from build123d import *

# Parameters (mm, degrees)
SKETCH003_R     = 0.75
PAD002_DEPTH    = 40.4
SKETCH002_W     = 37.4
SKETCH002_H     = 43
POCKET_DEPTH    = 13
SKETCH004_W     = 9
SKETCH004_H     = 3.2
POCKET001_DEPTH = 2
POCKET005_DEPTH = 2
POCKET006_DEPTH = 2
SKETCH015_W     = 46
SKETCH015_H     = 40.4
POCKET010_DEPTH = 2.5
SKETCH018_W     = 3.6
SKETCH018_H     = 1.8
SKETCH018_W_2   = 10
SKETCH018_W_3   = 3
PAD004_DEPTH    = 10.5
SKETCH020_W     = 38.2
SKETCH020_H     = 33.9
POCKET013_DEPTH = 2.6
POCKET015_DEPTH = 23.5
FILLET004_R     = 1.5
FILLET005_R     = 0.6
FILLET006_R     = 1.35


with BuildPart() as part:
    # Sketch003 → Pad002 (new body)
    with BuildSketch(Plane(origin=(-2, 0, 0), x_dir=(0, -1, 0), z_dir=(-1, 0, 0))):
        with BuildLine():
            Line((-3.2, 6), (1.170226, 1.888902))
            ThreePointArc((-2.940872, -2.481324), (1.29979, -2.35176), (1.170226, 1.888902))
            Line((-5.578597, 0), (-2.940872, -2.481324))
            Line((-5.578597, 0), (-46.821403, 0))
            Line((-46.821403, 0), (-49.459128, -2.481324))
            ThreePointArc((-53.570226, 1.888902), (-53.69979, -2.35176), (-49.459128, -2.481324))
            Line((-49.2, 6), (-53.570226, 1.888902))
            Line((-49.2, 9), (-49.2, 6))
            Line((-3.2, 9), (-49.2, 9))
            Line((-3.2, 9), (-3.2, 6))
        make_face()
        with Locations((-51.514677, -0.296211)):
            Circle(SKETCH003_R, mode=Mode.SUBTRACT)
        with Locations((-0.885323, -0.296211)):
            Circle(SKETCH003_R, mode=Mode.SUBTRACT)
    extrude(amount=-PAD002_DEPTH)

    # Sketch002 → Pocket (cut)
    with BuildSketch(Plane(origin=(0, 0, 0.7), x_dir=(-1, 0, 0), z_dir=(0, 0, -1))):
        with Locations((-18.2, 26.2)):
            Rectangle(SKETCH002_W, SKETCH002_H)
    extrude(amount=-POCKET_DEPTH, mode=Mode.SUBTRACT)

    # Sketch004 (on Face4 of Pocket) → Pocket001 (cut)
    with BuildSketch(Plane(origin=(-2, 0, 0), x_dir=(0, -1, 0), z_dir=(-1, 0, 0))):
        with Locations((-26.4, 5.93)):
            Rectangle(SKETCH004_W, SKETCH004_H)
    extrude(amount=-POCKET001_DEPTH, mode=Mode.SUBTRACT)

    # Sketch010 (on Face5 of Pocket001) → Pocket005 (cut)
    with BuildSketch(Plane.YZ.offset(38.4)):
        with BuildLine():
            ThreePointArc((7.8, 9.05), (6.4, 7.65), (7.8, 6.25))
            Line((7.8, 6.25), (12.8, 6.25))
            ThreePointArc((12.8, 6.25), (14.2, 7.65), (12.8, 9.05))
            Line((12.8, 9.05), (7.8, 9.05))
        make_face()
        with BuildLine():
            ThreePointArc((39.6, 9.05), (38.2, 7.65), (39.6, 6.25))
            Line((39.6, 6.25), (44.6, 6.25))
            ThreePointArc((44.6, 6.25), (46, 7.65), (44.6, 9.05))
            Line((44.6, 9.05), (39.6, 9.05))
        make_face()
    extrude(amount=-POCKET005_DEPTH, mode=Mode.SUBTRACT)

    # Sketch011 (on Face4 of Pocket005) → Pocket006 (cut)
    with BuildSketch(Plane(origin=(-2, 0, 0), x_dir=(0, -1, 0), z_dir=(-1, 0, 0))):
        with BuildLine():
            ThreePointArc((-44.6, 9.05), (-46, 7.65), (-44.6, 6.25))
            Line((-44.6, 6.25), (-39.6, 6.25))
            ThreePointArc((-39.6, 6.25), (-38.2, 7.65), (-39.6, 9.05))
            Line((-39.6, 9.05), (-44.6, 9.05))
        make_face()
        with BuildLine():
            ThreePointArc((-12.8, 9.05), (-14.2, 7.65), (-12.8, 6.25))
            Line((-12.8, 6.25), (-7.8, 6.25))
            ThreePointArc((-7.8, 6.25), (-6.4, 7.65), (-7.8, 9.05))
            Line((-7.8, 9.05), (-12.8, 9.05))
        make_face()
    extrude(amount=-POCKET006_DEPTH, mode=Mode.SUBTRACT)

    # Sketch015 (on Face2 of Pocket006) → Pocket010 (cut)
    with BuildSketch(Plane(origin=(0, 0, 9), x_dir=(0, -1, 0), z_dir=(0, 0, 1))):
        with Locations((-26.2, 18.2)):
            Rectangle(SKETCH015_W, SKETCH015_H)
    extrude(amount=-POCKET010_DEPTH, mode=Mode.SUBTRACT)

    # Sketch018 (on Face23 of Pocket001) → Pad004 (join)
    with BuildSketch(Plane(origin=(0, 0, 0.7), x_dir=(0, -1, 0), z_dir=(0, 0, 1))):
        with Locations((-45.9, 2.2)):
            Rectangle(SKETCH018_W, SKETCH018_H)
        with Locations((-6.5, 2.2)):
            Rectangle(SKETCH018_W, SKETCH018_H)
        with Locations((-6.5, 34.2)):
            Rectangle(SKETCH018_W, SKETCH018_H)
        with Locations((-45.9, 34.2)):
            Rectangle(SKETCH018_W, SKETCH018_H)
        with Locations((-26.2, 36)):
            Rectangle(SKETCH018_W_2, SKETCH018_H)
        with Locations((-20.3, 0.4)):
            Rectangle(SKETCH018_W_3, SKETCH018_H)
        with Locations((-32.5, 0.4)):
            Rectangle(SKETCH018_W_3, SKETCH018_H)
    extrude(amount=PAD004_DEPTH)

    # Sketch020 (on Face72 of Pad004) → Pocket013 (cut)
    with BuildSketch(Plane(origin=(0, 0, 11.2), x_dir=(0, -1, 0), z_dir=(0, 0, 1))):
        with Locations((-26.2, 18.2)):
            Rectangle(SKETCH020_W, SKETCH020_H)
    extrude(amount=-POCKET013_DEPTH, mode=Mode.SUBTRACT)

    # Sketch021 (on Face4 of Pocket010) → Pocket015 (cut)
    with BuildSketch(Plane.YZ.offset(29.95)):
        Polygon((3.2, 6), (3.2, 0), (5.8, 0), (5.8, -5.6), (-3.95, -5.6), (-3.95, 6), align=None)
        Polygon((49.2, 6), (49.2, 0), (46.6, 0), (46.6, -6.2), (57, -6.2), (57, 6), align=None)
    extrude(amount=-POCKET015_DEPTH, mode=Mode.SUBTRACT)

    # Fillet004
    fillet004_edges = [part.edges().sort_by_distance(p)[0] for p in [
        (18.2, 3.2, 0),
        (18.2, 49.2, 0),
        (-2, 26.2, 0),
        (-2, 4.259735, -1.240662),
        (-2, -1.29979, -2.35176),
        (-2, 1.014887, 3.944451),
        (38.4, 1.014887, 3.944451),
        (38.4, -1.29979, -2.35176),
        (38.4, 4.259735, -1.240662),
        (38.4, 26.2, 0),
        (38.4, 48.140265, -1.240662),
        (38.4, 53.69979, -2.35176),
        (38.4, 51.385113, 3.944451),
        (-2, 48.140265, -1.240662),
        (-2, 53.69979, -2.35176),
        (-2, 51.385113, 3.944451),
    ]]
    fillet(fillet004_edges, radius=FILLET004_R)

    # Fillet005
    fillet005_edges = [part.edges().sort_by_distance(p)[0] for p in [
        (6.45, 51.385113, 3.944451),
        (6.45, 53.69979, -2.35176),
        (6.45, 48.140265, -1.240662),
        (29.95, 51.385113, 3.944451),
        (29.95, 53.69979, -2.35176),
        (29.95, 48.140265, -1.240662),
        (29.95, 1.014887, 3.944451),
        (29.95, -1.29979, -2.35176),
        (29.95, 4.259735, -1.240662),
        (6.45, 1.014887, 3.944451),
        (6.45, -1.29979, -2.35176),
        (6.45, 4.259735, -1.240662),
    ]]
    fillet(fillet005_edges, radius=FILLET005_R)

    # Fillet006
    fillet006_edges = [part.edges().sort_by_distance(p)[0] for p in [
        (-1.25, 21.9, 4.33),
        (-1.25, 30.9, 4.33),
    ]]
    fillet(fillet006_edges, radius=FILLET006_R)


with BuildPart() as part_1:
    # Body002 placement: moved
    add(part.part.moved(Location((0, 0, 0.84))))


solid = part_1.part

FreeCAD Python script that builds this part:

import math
import FreeCAD as App
import Part
import Sketcher

V = App.Vector
Q = App.Units.Quantity


def edges_at(feature, points):
    """Names of the edges that pass closest to the given points."""
    edges = feature.Shape.Edges
    near = lambda p: min(range(len(edges)), key=lambda i: edges[i].distToShape(Part.Vertex(*p))[0])
    return sorted({f"Edge{near(p) + 1}" for p in points})

doc = App.newDocument("Part")
params = doc.addObject("Spreadsheet::Sheet", "Params")
for row, (alias, value) in enumerate([
    ("sketch1_radius", "3 mm"),
    ("sketch1_diameter", "1.5 mm"),
    ("sketch1_width", "46 mm"),
    ("sketch1_height", "3 mm"),
    ("sketch1_length", "6 mm"),
    ("pad1_length", "40.4 mm"),
    ("sketch2_height", "43 mm"),
    ("sketch2_width", "37.4 mm"),
    ("pocket1_length", "13 mm"),
    ("sketch3_width", "9 mm"),
    ("sketch3_height", "3.2 mm"),
    ("pocket2_length", "2 mm"),
    ("sketch4_radius", "1.4 mm"),
    ("sketch4_width", "5 mm"),
    ("pocket3_length", "2 mm"),
    ("sketch5_radius", "1.4 mm"),
    ("sketch5_width", "5 mm"),
    ("pocket4_length", "2 mm"),
    ("sketch6_height", "46 mm"),
    ("sketch6_width", "40.4 mm"),
    ("pocket5_length", "2.5 mm"),
    ("sketch7_height", "10 mm"),
    ("sketch7_height2", "3 mm"),
    ("sketch7_width", "1.8 mm"),
    ("sketch7_height3", "3.6 mm"),
    ("pad2_length", "10.5 mm"),
    ("sketch8_width", "33.9 mm"),
    ("sketch8_height", "38.2 mm"),
    ("pocket6_length", "2.6 mm"),
    ("sketch9_height", "6 mm"),
    ("sketch9_width", "2.6 mm"),
    ("sketch9_width2", "10.4 mm"),
    ("sketch9_height2", "11.6 mm"),
    ("sketch9_height3", "6.2 mm"),
    ("pocket7_length", "23.5 mm"),
    ("fillet_radius", "1.5 mm"),
    ("fillet2_radius", "0.6 mm"),
    ("fillet3_radius", "1.35 mm"),
], start=1):
    params.set(f"A{row}", alias)
    params.set(f"B{row}", "=" + value)
    params.setAlias(f"B{row}", alias)

body = doc.addObject("PartDesign::Body", "Body")

sketch1 = doc.addObject("Sketcher::SketchObject", "Sketch")
body.addObject(sketch1)
sketch1.AttachmentSupport = (doc.YZ_Plane, [""])
sketch1.MapMode = "FlatFace"
sketch1.AttachmentOffset = App.Placement(V(0, 0, -2), App.Rotation())
sketch1.addGeometry(Part.LineSegment(V(-1.170226, 1.888902, 0), V(3.2, 6, 0)), False)
sketch1.addGeometry(Part.LineSegment(V(3.2, 6, 0), V(3.2, 9, 0)), False)
sketch1.addGeometry(Part.LineSegment(V(3.2, 9, 0), V(49.2, 9, 0)), False)
sketch1.addGeometry(Part.LineSegment(V(49.2, 9, 0), V(49.2, 6, 0)), False)
sketch1.addGeometry(Part.LineSegment(V(49.2, 6, 0), V(53.570226, 1.888902, 0)), False)
sketch1.addGeometry(Part.ArcOfCircle(Part.Circle(V(51.514677, -0.296211, 0), V(0, 0, 1), 3), math.radians(-133.249999), math.radians(46.750001)), False)
sketch1.addGeometry(Part.LineSegment(V(49.459128, -2.481324, 0), V(46.821403, 0, 0)), False)
sketch1.addGeometry(Part.LineSegment(V(46.821403, 0, 0), V(5.578597, 0, 0)), False)
sketch1.addGeometry(Part.LineSegment(V(5.578597, 0, 0), V(2.940872, -2.481324, 0)), False)
sketch1.addGeometry(Part.ArcOfCircle(Part.Circle(V(0.885323, -0.296211, 0), V(0, 0, 1), 3), math.radians(133.249999), math.radians(313.249999)), False)
sketch1.addGeometry(Part.Circle(V(0.885323, -0.296211, 0), V(0, 0, 1), 0.75), False)
sketch1.addGeometry(Part.Circle(V(51.514677, -0.296211, 0), V(0, 0, 1), 0.75), False)
sketch1.addConstraint(Sketcher.Constraint("Coincident", 0, 2, 1, 1))
sketch1.addConstraint(Sketcher.Constraint("Coincident", 1, 2, 2, 1))
sketch1.addConstraint(Sketcher.Constraint("Coincident", 2, 2, 3, 1))
sketch1.addConstraint(Sketcher.Constraint("Coincident", 3, 2, 4, 1))
sketch1.addConstraint(Sketcher.Constraint("Tangent", 4, 2, 5, 2))
sketch1.addConstraint(Sketcher.Constraint("Tangent", 5, 1, 6, 1))
sketch1.addConstraint(Sketcher.Constraint("Coincident", 6, 2, 7, 1))
sketch1.addConstraint(Sketcher.Constraint("Coincident", 7, 2, 8, 1))
sketch1.addConstraint(Sketcher.Constraint("Tangent", 8, 2, 9, 2))
sketch1.addConstraint(Sketcher.Constraint("Tangent", 9, 1, 0, 1))
sketch1.addConstraint(Sketcher.Constraint("Vertical", 1))
sketch1.addConstraint(Sketcher.Constraint("Horizontal", 2))
sketch1.addConstraint(Sketcher.Constraint("Vertical", 3))
sketch1.addConstraint(Sketcher.Constraint("Horizontal", 7))
sketch1.addConstraint(Sketcher.Constraint("Coincident", 10, 3, 9, 3))
sketch1.addConstraint(Sketcher.Constraint("Coincident", 11, 3, 5, 3))
sketch1.addConstraint(Sketcher.Constraint("Equal", 5, 9))
sketch1.addConstraint(Sketcher.Constraint("Equal", 10, 11))
sketch1.addConstraint(Sketcher.Constraint("PointOnObject", 6, 2, -1))
sketch1.addConstraint(Sketcher.Constraint("Parallel", 4, 6))
sketch1.addConstraint(Sketcher.Constraint("Parallel", 0, 8))
sketch1.addConstraint(Sketcher.Constraint("Horizontal", 5, 3, 9, 3))
sketch1.addConstraint(Sketcher.Constraint("Horizontal", 0, 2, 3, 2))
sketch1.addConstraint(Sketcher.Constraint("Horizontal", 5, 1, 8, 2))
sketch1.addConstraint(Sketcher.Constraint("Radius", 5, Q("3 mm")))
sketch1.addConstraint(Sketcher.Constraint("Diameter", 10, Q("1.5 mm")))
sketch1.addConstraint(Sketcher.Constraint("DistanceX", 2, 1, 2, 2, Q("46 mm")))
sketch1.addConstraint(Sketcher.Constraint("DistanceY", 1, 1, 1, 2, Q("3 mm")))
sketch1.addConstraint(Sketcher.Constraint("Distance", 0, Q("6 mm")))
sketch1.addConstraint(Sketcher.Constraint("DistanceY", -1, 1, 0, 2, Q("6 mm")))
sketch1.addConstraint(Sketcher.Constraint("DistanceX", -1, 1, 0, 2, Q("3.2 mm")))
sketch1.addConstraint(Sketcher.Constraint("Angle", 0, Q("43.249999 deg")))
sketch1.setExpression("Constraints[24]", "Params.sketch1_radius")
sketch1.setExpression("Constraints[25]", "Params.sketch1_diameter")
sketch1.setExpression("Constraints[26]", "Params.sketch1_width")
sketch1.setExpression("Constraints[27]", "Params.sketch1_height")
sketch1.setExpression("Constraints[28]", "Params.sketch1_length")
pad1 = doc.addObject("PartDesign::Pad", "Pad")
body.addObject(pad1)
pad1.Profile = sketch1
pad1.setExpression("Length", "Params.pad1_length")

sketch2 = doc.addObject("Sketcher::SketchObject", "Sketch001")
body.addObject(sketch2)
sketch2.AttachmentSupport = (doc.XY_Plane, [""])
sketch2.MapMode = "FlatFace"
sketch2.AttachmentOffset = App.Placement(V(0, 0, 0.7), App.Rotation())
sketch2.addGeometry(Part.LineSegment(V(36.9, 47.7, 0), V(36.9, 4.7, 0)), False)
sketch2.addGeometry(Part.LineSegment(V(36.9, 4.7, 0), V(-0.5, 4.7, 0)), False)
sketch2.addGeometry(Part.LineSegment(V(-0.5, 4.7, 0), V(-0.5, 47.7, 0)), False)
sketch2.addGeometry(Part.LineSegment(V(-0.5, 47.7, 0), V(36.9, 47.7, 0)), False)
sketch2.addConstraint(Sketcher.Constraint("Coincident", 0, 2, 1, 1))
sketch2.addConstraint(Sketcher.Constraint("Coincident", 1, 2, 2, 1))
sketch2.addConstraint(Sketcher.Constraint("Coincident", 2, 2, 3, 1))
sketch2.addConstraint(Sketcher.Constraint("Coincident", 3, 2, 0, 1))
sketch2.addConstraint(Sketcher.Constraint("Vertical", 0))
sketch2.addConstraint(Sketcher.Constraint("Horizontal", 1))
sketch2.addConstraint(Sketcher.Constraint("Vertical", 2))
sketch2.addConstraint(Sketcher.Constraint("Horizontal", 3))
sketch2.addConstraint(Sketcher.Constraint("DistanceY", 0, 2, 0, 1, Q("43 mm")))
sketch2.addConstraint(Sketcher.Constraint("DistanceX", 1, 2, 1, 1, Q("37.4 mm")))
sketch2.addConstraint(Sketcher.Constraint("DistanceX", -1, 1, 0, 2, Q("36.9 mm")))
sketch2.addConstraint(Sketcher.Constraint("DistanceY", -1, 1, 0, 2, Q("4.7 mm")))
sketch2.setExpression("Constraints[8]", "Params.sketch2_height")
sketch2.setExpression("Constraints[9]", "Params.sketch2_width")
pocket1 = doc.addObject("PartDesign::Pocket", "Pocket")
body.addObject(pocket1)
pocket1.Profile = sketch2
pocket1.setExpression("Length", "Params.pocket1_length")
pocket1.Reversed = True

sketch3 = doc.addObject("Sketcher::SketchObject", "Sketch002")
body.addObject(sketch3)
sketch3.AttachmentSupport = (doc.YZ_Plane, [""])
sketch3.MapMode = "FlatFace"
sketch3.AttachmentOffset = App.Placement(V(0, 0, -2), App.Rotation())
sketch3.addGeometry(Part.LineSegment(V(30.9, 7.53, 0), V(30.9, 4.33, 0)), False)
sketch3.addGeometry(Part.LineSegment(V(30.9, 4.33, 0), V(21.9, 4.33, 0)), False)
sketch3.addGeometry(Part.LineSegment(V(21.9, 4.33, 0), V(21.9, 7.53, 0)), False)
sketch3.addGeometry(Part.LineSegment(V(21.9, 7.53, 0), V(30.9, 7.53, 0)), False)
sketch3.addConstraint(Sketcher.Constraint("Coincident", 0, 2, 1, 1))
sketch3.addConstraint(Sketcher.Constraint("Coincident", 1, 2, 2, 1))
sketch3.addConstraint(Sketcher.Constraint("Coincident", 2, 2, 3, 1))
sketch3.addConstraint(Sketcher.Constraint("Coincident", 3, 2, 0, 1))
sketch3.addConstraint(Sketcher.Constraint("Vertical", 0))
sketch3.addConstraint(Sketcher.Constraint("Horizontal", 1))
sketch3.addConstraint(Sketcher.Constraint("Vertical", 2))
sketch3.addConstraint(Sketcher.Constraint("Horizontal", 3))
sketch3.addConstraint(Sketcher.Constraint("DistanceX", 1, 2, 1, 1, Q("9 mm")))
sketch3.addConstraint(Sketcher.Constraint("DistanceY", 0, 2, 0, 1, Q("3.2 mm")))
sketch3.addConstraint(Sketcher.Constraint("DistanceX", -1, 1, 0, 2, Q("30.9 mm")))
sketch3.addConstraint(Sketcher.Constraint("DistanceY", -1, 1, 0, 2, Q("4.33 mm")))
sketch3.setExpression("Constraints[8]", "Params.sketch3_width")
sketch3.setExpression("Constraints[9]", "Params.sketch3_height")
pocket2 = doc.addObject("PartDesign::Pocket", "Pocket001")
body.addObject(pocket2)
pocket2.Profile = sketch3
pocket2.setExpression("Length", "Params.pocket2_length")
pocket2.Reversed = True

sketch4 = doc.addObject("Sketcher::SketchObject", "Sketch003")
body.addObject(sketch4)
sketch4.AttachmentSupport = (doc.YZ_Plane, [""])
sketch4.MapMode = "FlatFace"
sketch4.AttachmentOffset = App.Placement(V(0, 0, 38.4), App.Rotation())
sketch4.addGeometry(Part.ArcOfCircle(Part.Circle(V(7.8, 7.65, 0), V(0, 0, 1), 1.4), math.radians(90), math.radians(270)), False)
sketch4.addGeometry(Part.LineSegment(V(7.8, 6.25, 0), V(12.8, 6.25, 0)), False)
sketch4.addGeometry(Part.ArcOfCircle(Part.Circle(V(12.8, 7.65, 0), V(0, 0, 1), 1.4), math.radians(-90), math.radians(90)), False)
sketch4.addGeometry(Part.LineSegment(V(12.8, 9.05, 0), V(7.8, 9.05, 0)), False)
sketch4.addGeometry(Part.ArcOfCircle(Part.Circle(V(39.6, 7.65, 0), V(0, 0, 1), 1.4), math.radians(90), math.radians(270)), False)
sketch4.addGeometry(Part.LineSegment(V(39.6, 6.25, 0), V(44.6, 6.25, 0)), False)
sketch4.addGeometry(Part.ArcOfCircle(Part.Circle(V(44.6, 7.65, 0), V(0, 0, 1), 1.4), math.radians(-90), math.radians(90)), False)
sketch4.addGeometry(Part.LineSegment(V(44.6, 9.05, 0), V(39.6, 9.05, 0)), False)
sketch4.addConstraint(Sketcher.Constraint("Tangent", 0, 2, 1, 1))
sketch4.addConstraint(Sketcher.Constraint("Tangent", 1, 2, 2, 1))
sketch4.addConstraint(Sketcher.Constraint("Tangent", 2, 2, 3, 1))
sketch4.addConstraint(Sketcher.Constraint("Tangent", 3, 2, 0, 1))
sketch4.addConstraint(Sketcher.Constraint("Tangent", 4, 2, 5, 1))
sketch4.addConstraint(Sketcher.Constraint("Tangent", 5, 2, 6, 1))
sketch4.addConstraint(Sketcher.Constraint("Tangent", 6, 2, 7, 1))
sketch4.addConstraint(Sketcher.Constraint("Tangent", 7, 2, 4, 1))
sketch4.addConstraint(Sketcher.Constraint("Horizontal", 1))
sketch4.addConstraint(Sketcher.Constraint("Horizontal", 3))
sketch4.addConstraint(Sketcher.Constraint("Horizontal", 5))
sketch4.addConstraint(Sketcher.Constraint("Horizontal", 7))
sketch4.addConstraint(Sketcher.Constraint("Equal", 2, 4))
sketch4.addConstraint(Sketcher.Constraint("Horizontal", 2, 3, 4, 3))
sketch4.addConstraint(Sketcher.Constraint("Equal", 3, 5))
sketch4.addConstraint(Sketcher.Constraint("Radius", 0, Q("1.4 mm")))
sketch4.addConstraint(Sketcher.Constraint("DistanceX", 1, 1, 1, 2, Q("5 mm")))
sketch4.addConstraint(Sketcher.Constraint("DistanceX", -1, 1, 0, 3, Q("7.8 mm")))
sketch4.addConstraint(Sketcher.Constraint("DistanceX", -1, 1, 4, 3, Q("39.6 mm")))
sketch4.addConstraint(Sketcher.Constraint("DistanceY", -1, 1, 0, 3, Q("7.65 mm")))
sketch4.setExpression("Constraints[15]", "Params.sketch4_radius")
sketch4.setExpression("Constraints[16]", "Params.sketch4_width")
pocket3 = doc.addObject("PartDesign::Pocket", "Pocket002")
body.addObject(pocket3)
pocket3.Profile = sketch4
pocket3.setExpression("Length", "Params.pocket3_length")

sketch5 = doc.addObject("Sketcher::SketchObject", "Sketch004")
body.addObject(sketch5)
sketch5.AttachmentSupport = (doc.YZ_Plane, [""])
sketch5.MapMode = "FlatFace"
sketch5.AttachmentOffset = App.Placement(V(0, 0, -2), App.Rotation())
sketch5.addGeometry(Part.ArcOfCircle(Part.Circle(V(44.6, 7.65, 0), V(0, 0, 1), 1.4), math.radians(-90), math.radians(90)), False)
sketch5.addGeometry(Part.LineSegment(V(44.6, 6.25, 0), V(39.6, 6.25, 0)), False)
sketch5.addGeometry(Part.ArcOfCircle(Part.Circle(V(39.6, 7.65, 0), V(0, 0, 1), 1.4), math.radians(90), math.radians(270)), False)
sketch5.addGeometry(Part.LineSegment(V(39.6, 9.05, 0), V(44.6, 9.05, 0)), False)
sketch5.addGeometry(Part.ArcOfCircle(Part.Circle(V(12.8, 7.65, 0), V(0, 0, 1), 1.4), math.radians(-90), math.radians(90)), False)
sketch5.addGeometry(Part.LineSegment(V(12.8, 6.25, 0), V(7.8, 6.25, 0)), False)
sketch5.addGeometry(Part.ArcOfCircle(Part.Circle(V(7.8, 7.65, 0), V(0, 0, 1), 1.4), math.radians(90), math.radians(270)), False)
sketch5.addGeometry(Part.LineSegment(V(7.8, 9.05, 0), V(12.8, 9.05, 0)), False)
sketch5.addConstraint(Sketcher.Constraint("Tangent", 0, 1, 1, 1))
sketch5.addConstraint(Sketcher.Constraint("Tangent", 1, 2, 2, 2))
sketch5.addConstraint(Sketcher.Constraint("Tangent", 2, 1, 3, 1))
sketch5.addConstraint(Sketcher.Constraint("Tangent", 3, 2, 0, 2))
sketch5.addConstraint(Sketcher.Constraint("Tangent", 4, 1, 5, 1))
sketch5.addConstraint(Sketcher.Constraint("Tangent", 5, 2, 6, 2))
sketch5.addConstraint(Sketcher.Constraint("Tangent", 6, 1, 7, 1))
sketch5.addConstraint(Sketcher.Constraint("Tangent", 7, 2, 4, 2))
sketch5.addConstraint(Sketcher.Constraint("Horizontal", 1))
sketch5.addConstraint(Sketcher.Constraint("Horizontal", 3))
sketch5.addConstraint(Sketcher.Constraint("Horizontal", 5))
sketch5.addConstraint(Sketcher.Constraint("Horizontal", 7))
sketch5.addConstraint(Sketcher.Constraint("Equal", 2, 4))
sketch5.addConstraint(Sketcher.Constraint("Horizontal", 2, 3, 4, 3))
sketch5.addConstraint(Sketcher.Constraint("Equal", 3, 5))
sketch5.addConstraint(Sketcher.Constraint("Radius", 0, Q("1.4 mm")))
sketch5.addConstraint(Sketcher.Constraint("DistanceX", 1, 2, 1, 1, Q("5 mm")))
sketch5.addConstraint(Sketcher.Constraint("DistanceX", -1, 1, 0, 3, Q("44.6 mm")))
sketch5.addConstraint(Sketcher.Constraint("DistanceX", -1, 1, 4, 3, Q("12.8 mm")))
sketch5.addConstraint(Sketcher.Constraint("DistanceY", -1, 1, 0, 3, Q("7.65 mm")))
sketch5.setExpression("Constraints[15]", "Params.sketch5_radius")
sketch5.setExpression("Constraints[16]", "Params.sketch5_width")
pocket4 = doc.addObject("PartDesign::Pocket", "Pocket003")
body.addObject(pocket4)
pocket4.Profile = sketch5
pocket4.setExpression("Length", "Params.pocket4_length")
pocket4.Reversed = True

sketch6 = doc.addObject("Sketcher::SketchObject", "Sketch005")
body.addObject(sketch6)
sketch6.AttachmentSupport = (doc.XY_Plane, [""])
sketch6.MapMode = "FlatFace"
sketch6.AttachmentOffset = App.Placement(V(0, 0, 9), App.Rotation())
sketch6.addGeometry(Part.LineSegment(V(38.4, 49.2, 0), V(-2, 49.2, 0)), False)
sketch6.addGeometry(Part.LineSegment(V(-2, 49.2, 0), V(-2, 3.2, 0)), False)
sketch6.addGeometry(Part.LineSegment(V(-2, 3.2, 0), V(38.4, 3.2, 0)), False)
sketch6.addGeometry(Part.LineSegment(V(38.4, 3.2, 0), V(38.4, 49.2, 0)), False)
sketch6.addConstraint(Sketcher.Constraint("Coincident", 0, 2, 1, 1))
sketch6.addConstraint(Sketcher.Constraint("Coincident", 1, 2, 2, 1))
sketch6.addConstraint(Sketcher.Constraint("Coincident", 2, 2, 3, 1))
sketch6.addConstraint(Sketcher.Constraint("Coincident", 3, 2, 0, 1))
sketch6.addConstraint(Sketcher.Constraint("Horizontal", 0))
sketch6.addConstraint(Sketcher.Constraint("Vertical", 1))
sketch6.addConstraint(Sketcher.Constraint("Horizontal", 2))
sketch6.addConstraint(Sketcher.Constraint("Vertical", 3))
sketch6.addConstraint(Sketcher.Constraint("DistanceY", 1, 2, 1, 1, Q("46 mm")))
sketch6.addConstraint(Sketcher.Constraint("DistanceX", 0, 2, 0, 1, Q("40.4 mm")))
sketch6.addConstraint(Sketcher.Constraint("DistanceX", 0, 2, -1, 1, Q("2 mm")))
sketch6.addConstraint(Sketcher.Constraint("DistanceY", -1, 1, 0, 2, Q("49.2 mm")))
sketch6.setExpression("Constraints[8]", "Params.sketch6_height")
sketch6.setExpression("Constraints[9]", "Params.sketch6_width")
pocket5 = doc.addObject("PartDesign::Pocket", "Pocket004")
body.addObject(pocket5)
pocket5.Profile = sketch6
pocket5.setExpression("Length", "Params.pocket5_length")

sketch7 = doc.addObject("Sketcher::SketchObject", "Sketch006")
body.addObject(sketch7)
sketch7.AttachmentSupport = (doc.XY_Plane, [""])
sketch7.MapMode = "FlatFace"
sketch7.AttachmentOffset = App.Placement(V(0, 0, 0.7), App.Rotation())
sketch7.addGeometry(Part.LineSegment(V(3.1, 47.7, 0), V(1.3, 47.7, 0)), False)
sketch7.addGeometry(Part.LineSegment(V(1.3, 47.7, 0), V(1.3, 44.1, 0)), False)
sketch7.addGeometry(Part.LineSegment(V(1.3, 44.1, 0), V(3.1, 44.1, 0)), False)
sketch7.addGeometry(Part.LineSegment(V(3.1, 44.1, 0), V(3.1, 47.7, 0)), False)
sketch7.addGeometry(Part.LineSegment(V(3.1, 8.3, 0), V(1.3, 8.3, 0)), False)
sketch7.addGeometry(Part.LineSegment(V(1.3, 8.3, 0), V(1.3, 4.7, 0)), False)
sketch7.addGeometry(Part.LineSegment(V(1.3, 4.7, 0), V(3.1, 4.7, 0)), False)
sketch7.addGeometry(Part.LineSegment(V(3.1, 4.7, 0), V(3.1, 8.3, 0)), False)
sketch7.addGeometry(Part.LineSegment(V(35.1, 8.3, 0), V(33.3, 8.3, 0)), False)
sketch7.addGeometry(Part.LineSegment(V(33.3, 8.3, 0), V(33.3, 4.7, 0)), False)
sketch7.addGeometry(Part.LineSegment(V(33.3, 4.7, 0), V(35.1, 4.7, 0)), False)
sketch7.addGeometry(Part.LineSegment(V(35.1, 4.7, 0), V(35.1, 8.3, 0)), False)
sketch7.addGeometry(Part.LineSegment(V(35.1, 47.7, 0), V(33.3, 47.7, 0)), False)
sketch7.addGeometry(Part.LineSegment(V(33.3, 47.7, 0), V(33.3, 44.1, 0)), False)
sketch7.addGeometry(Part.LineSegment(V(33.3, 44.1, 0), V(35.1, 44.1, 0)), False)
sketch7.addGeometry(Part.LineSegment(V(35.1, 44.1, 0), V(35.1, 47.7, 0)), False)
sketch7.addGeometry(Part.LineSegment(V(36.9, 31.2, 0), V(35.1, 31.2, 0)), False)
sketch7.addGeometry(Part.LineSegment(V(35.1, 31.2, 0), V(35.1, 21.2, 0)), False)
sketch7.addGeometry(Part.LineSegment(V(35.1, 21.2, 0), V(36.9, 21.2, 0)), False)
sketch7.addGeometry(Part.LineSegment(V(36.9, 21.2, 0), V(36.9, 31.2, 0)), False)
sketch7.addGeometry(Part.LineSegment(V(1.3, 21.8, 0), V(-0.5, 21.8, 0)), False)
sketch7.addGeometry(Part.LineSegment(V(-0.5, 21.8, 0), V(-0.5, 18.8, 0)), False)
sketch7.addGeometry(Part.LineSegment(V(-0.5, 18.8, 0), V(1.3, 18.8, 0)), False)
sketch7.addGeometry(Part.LineSegment(V(1.3, 18.8, 0), V(1.3, 21.8, 0)), False)
sketch7.addGeometry(Part.LineSegment(V(1.3, 34, 0), V(-0.5, 34, 0)), False)
sketch7.addGeometry(Part.LineSegment(V(-0.5, 34, 0), V(-0.5, 31, 0)), False)
sketch7.addGeometry(Part.LineSegment(V(-0.5, 31, 0), V(1.3, 31, 0)), False)
sketch7.addGeometry(Part.LineSegment(V(1.3, 31, 0), V(1.3, 34, 0)), False)
sketch7.addConstraint(Sketcher.Constraint("Coincident", 0, 2, 1, 1))
sketch7.addConstraint(Sketcher.Constraint("Coincident", 1, 2, 2, 1))
sketch7.addConstraint(Sketcher.Constraint("Coincident", 2, 2, 3, 1))
sketch7.addConstraint(Sketcher.Constraint("Coincident", 3, 2, 0, 1))
sketch7.addConstraint(Sketcher.Constraint("Coincident", 4, 2, 5, 1))
sketch7.addConstraint(Sketcher.Constraint("Coincident", 5, 2, 6, 1))
sketch7.addConstraint(Sketcher.Constraint("Coincident", 6, 2, 7, 1))
sketch7.addConstraint(Sketcher.Constraint("Coincident", 7, 2, 4, 1))
sketch7.addConstraint(Sketcher.Constraint("Coincident", 8, 2, 9, 1))
sketch7.addConstraint(Sketcher.Constraint("Coincident", 9, 2, 10, 1))
sketch7.addConstraint(Sketcher.Constraint("Coincident", 10, 2, 11, 1))
sketch7.addConstraint(Sketcher.Constraint("Coincident", 11, 2, 8, 1))
sketch7.addConstraint(Sketcher.Constraint("Coincident", 12, 2, 13, 1))
sketch7.addConstraint(Sketcher.Constraint("Coincident", 13, 2, 14, 1))
sketch7.addConstraint(Sketcher.Constraint("Coincident", 14, 2, 15, 1))
sketch7.addConstraint(Sketcher.Constraint("Coincident", 15, 2, 12, 1))
sketch7.addConstraint(Sketcher.Constraint("Coincident", 16, 2, 17, 1))
sketch7.addConstraint(Sketcher.Constraint("Coincident", 17, 2, 18, 1))
sketch7.addConstraint(Sketcher.Constraint("Coincident", 18, 2, 19, 1))
sketch7.addConstraint(Sketcher.Constraint("Coincident", 19, 2, 16, 1))
sketch7.addConstraint(Sketcher.Constraint("Coincident", 20, 2, 21, 1))
sketch7.addConstraint(Sketcher.Constraint("Coincident", 21, 2, 22, 1))
sketch7.addConstraint(Sketcher.Constraint("Coincident", 22, 2, 23, 1))
sketch7.addConstraint(Sketcher.Constraint("Coincident", 23, 2, 20, 1))
sketch7.addConstraint(Sketcher.Constraint("Coincident", 24, 2, 25, 1))
sketch7.addConstraint(Sketcher.Constraint("Coincident", 25, 2, 26, 1))
sketch7.addConstraint(Sketcher.Constraint("Coincident", 26, 2, 27, 1))
sketch7.addConstraint(Sketcher.Constraint("Coincident", 27, 2, 24, 1))
sketch7.addConstraint(Sketcher.Constraint("Horizontal", 0))
sketch7.addConstraint(Sketcher.Constraint("Vertical", 1))
sketch7.addConstraint(Sketcher.Constraint("Horizontal", 2))
sketch7.addConstraint(Sketcher.Constraint("Vertical", 3))
sketch7.addConstraint(Sketcher.Constraint("Horizontal", 4))
sketch7.addConstraint(Sketcher.Constraint("Vertical", 5))
sketch7.addConstraint(Sketcher.Constraint("Horizontal", 6))
sketch7.addConstraint(Sketcher.Constraint("Vertical", 7))
sketch7.addConstraint(Sketcher.Constraint("Horizontal", 8))
sketch7.addConstraint(Sketcher.Constraint("Vertical", 9))
sketch7.addConstraint(Sketcher.Constraint("Horizontal", 10))
sketch7.addConstraint(Sketcher.Constraint("Vertical", 11))
sketch7.addConstraint(Sketcher.Constraint("Horizontal", 12))
sketch7.addConstraint(Sketcher.Constraint("Vertical", 13))
sketch7.addConstraint(Sketcher.Constraint("Horizontal", 14))
sketch7.addConstraint(Sketcher.Constraint("Vertical", 15))
sketch7.addConstraint(Sketcher.Constraint("Horizontal", 16))
sketch7.addConstraint(Sketcher.Constraint("Vertical", 17))
sketch7.addConstraint(Sketcher.Constraint("Horizontal", 18))
sketch7.addConstraint(Sketcher.Constraint("Vertical", 19))
sketch7.addConstraint(Sketcher.Constraint("Horizontal", 20))
sketch7.addConstraint(Sketcher.Constraint("Vertical", 21))
sketch7.addConstraint(Sketcher.Constraint("Horizontal", 22))
sketch7.addConstraint(Sketcher.Constraint("Vertical", 23))
sketch7.addConstraint(Sketcher.Constraint("Horizontal", 24))
sketch7.addConstraint(Sketcher.Constraint("Vertical", 25))
sketch7.addConstraint(Sketcher.Constraint("Horizontal", 26))
sketch7.addConstraint(Sketcher.Constraint("Vertical", 27))
sketch7.addConstraint(Sketcher.Constraint("Horizontal", 7, 2, 8, 2))
sketch7.addConstraint(Sketcher.Constraint("Horizontal", 6, 2, 9, 2))
sketch7.addConstraint(Sketcher.Constraint("Horizontal", 3, 2, 12, 2))
sketch7.addConstraint(Sketcher.Constraint("Horizontal", 2, 2, 13, 2))
sketch7.addConstraint(Sketcher.Constraint("Vertical", 1, 2, 4, 2))
sketch7.addConstraint(Sketcher.Constraint("Vertical", 3, 2, 6, 2))
sketch7.addConstraint(Sketcher.Constraint("Vertical", 9, 2, 12, 2))
sketch7.addConstraint(Sketcher.Constraint("Vertical", 11, 2, 14, 2))
sketch7.addConstraint(Sketcher.Constraint("Vertical", 15, 2, 16, 2))
sketch7.addConstraint(Sketcher.Constraint("Vertical", 5, 2, 22, 2))
sketch7.addConstraint(Sketcher.Constraint("Vertical", 21, 2, 24, 2))
sketch7.addConstraint(Sketcher.Constraint("Vertical", 23, 2, 26, 2))
sketch7.addConstraint(Sketcher.Constraint("Equal", 6, 8))
sketch7.addConstraint(Sketcher.Constraint("Equal", 14, 16))
sketch7.addConstraint(Sketcher.Constraint("Equal", 18, 20))
sketch7.addConstraint(Sketcher.Constraint("Equal", 3, 5))
sketch7.addConstraint(Sketcher.Constraint("Equal", 23, 25))
sketch7.addConstraint(Sketcher.Constraint("DistanceY", 17, 2, 17, 1, Q("10 mm")))
sketch7.addConstraint(Sketcher.Constraint("DistanceY", 21, 2, 21, 1, Q("3 mm")))
sketch7.addConstraint(Sketcher.Constraint("DistanceX", 0, 2, 0, 1, Q("1.8 mm")))
sketch7.addConstraint(Sketcher.Constraint("DistanceY", 1, 2, 1, 1, Q("3.6 mm")))
sketch7.addConstraint(Sketcher.Constraint("DistanceY", -1, 1, 24, 2, Q("34 mm")))
sketch7.addConstraint(Sketcher.Constraint("DistanceY", 5, 2, 0, 2, Q("43 mm")))
sketch7.addConstraint(Sketcher.Constraint("DistanceX", 4, 2, 8, 2, Q("32 mm")))
sketch7.addConstraint(Sketcher.Constraint("DistanceX", -1, 1, 0, 2, Q("1.3 mm")))
sketch7.addConstraint(Sketcher.Constraint("DistanceY", -1, 1, 0, 2, Q("47.7 mm")))
sketch7.addConstraint(Sketcher.Constraint("DistanceY", -1, 1, 16, 2, Q("31.2 mm")))
sketch7.addConstraint(Sketcher.Constraint("DistanceY", -1, 1, 20, 2, Q("21.8 mm")))
sketch7.setExpression("Constraints[73]", "Params.sketch7_height")
sketch7.setExpression("Constraints[74]", "Params.sketch7_height2")
sketch7.setExpression("Constraints[75]", "Params.sketch7_width")
sketch7.setExpression("Constraints[76]", "Params.sketch7_height3")
pad2 = doc.addObject("PartDesign::Pad", "Pad001")
body.addObject(pad2)
pad2.Profile = sketch7
pad2.setExpression("Length", "Params.pad2_length")

sketch8 = doc.addObject("Sketcher::SketchObject", "Sketch007")
body.addObject(sketch8)
sketch8.AttachmentSupport = (doc.XY_Plane, [""])
sketch8.MapMode = "FlatFace"
sketch8.AttachmentOffset = App.Placement(V(0, 0, 11.2), App.Rotation())
sketch8.addGeometry(Part.LineSegment(V(35.15, 45.3, 0), V(1.25, 45.3, 0)), False)
sketch8.addGeometry(Part.LineSegment(V(1.25, 45.3, 0), V(1.25, 7.1, 0)), False)
sketch8.addGeometry(Part.LineSegment(V(1.25, 7.1, 0), V(35.15, 7.1, 0)), False)
sketch8.addGeometry(Part.LineSegment(V(35.15, 7.1, 0), V(35.15, 45.3, 0)), False)
sketch8.addConstraint(Sketcher.Constraint("Coincident", 0, 2, 1, 1))
sketch8.addConstraint(Sketcher.Constraint("Coincident", 1, 2, 2, 1))
sketch8.addConstraint(Sketcher.Constraint("Coincident", 2, 2, 3, 1))
sketch8.addConstraint(Sketcher.Constraint("Coincident", 3, 2, 0, 1))
sketch8.addConstraint(Sketcher.Constraint("Horizontal", 0))
sketch8.addConstraint(Sketcher.Constraint("Vertical", 1))
sketch8.addConstraint(Sketcher.Constraint("Horizontal", 2))
sketch8.addConstraint(Sketcher.Constraint("Vertical", 3))
sketch8.addConstraint(Sketcher.Constraint("DistanceX", 0, 2, 0, 1, Q("33.9 mm")))
sketch8.addConstraint(Sketcher.Constraint("DistanceY", 1, 2, 1, 1, Q("38.2 mm")))
sketch8.addConstraint(Sketcher.Constraint("DistanceY", -1, 1, 0, 2, Q("45.3 mm")))
sketch8.addConstraint(Sketcher.Constraint("DistanceX", -1, 1, 0, 2, Q("1.25 mm")))
sketch8.setExpression("Constraints[8]", "Params.sketch8_width")
sketch8.setExpression("Constraints[9]", "Params.sketch8_height")
pocket6 = doc.addObject("PartDesign::Pocket", "Pocket005")
body.addObject(pocket6)
pocket6.Profile = sketch8
pocket6.setExpression("Length", "Params.pocket6_length")

sketch9 = doc.addObject("Sketcher::SketchObject", "Sketch008")
body.addObject(sketch9)
sketch9.AttachmentSupport = (doc.YZ_Plane, [""])
sketch9.MapMode = "FlatFace"
sketch9.AttachmentOffset = App.Placement(V(0, 0, 29.95), App.Rotation())
sketch9.addGeometry(Part.LineSegment(V(3.2, 0, 0), V(3.2, 6, 0)), False)
sketch9.addGeometry(Part.LineSegment(V(3.2, 6, 0), V(-3.95, 6, 0)), False)
sketch9.addGeometry(Part.LineSegment(V(-3.95, 6, 0), V(-3.95, -5.6, 0)), False)
sketch9.addGeometry(Part.LineSegment(V(-3.95, -5.6, 0), V(5.8, -5.6, 0)), False)
sketch9.addGeometry(Part.LineSegment(V(5.8, -5.6, 0), V(5.8, 0, 0)), False)
sketch9.addGeometry(Part.LineSegment(V(5.8, 0, 0), V(3.2, 0, 0)), False)
sketch9.addGeometry(Part.LineSegment(V(49.2, 6, 0), V(49.2, 0, 0)), False)
sketch9.addGeometry(Part.LineSegment(V(49.2, 0, 0), V(46.6, 0, 0)), False)
sketch9.addGeometry(Part.LineSegment(V(46.6, 0, 0), V(46.6, -6.2, 0)), False)
sketch9.addGeometry(Part.LineSegment(V(46.6, -6.2, 0), V(57, -6.2, 0)), False)
sketch9.addGeometry(Part.LineSegment(V(57, -6.2, 0), V(57, 6, 0)), False)
sketch9.addGeometry(Part.LineSegment(V(57, 6, 0), V(49.2, 6, 0)), False)
sketch9.addConstraint(Sketcher.Constraint("Coincident", 0, 2, 1, 1))
sketch9.addConstraint(Sketcher.Constraint("Coincident", 1, 2, 2, 1))
sketch9.addConstraint(Sketcher.Constraint("Coincident", 2, 2, 3, 1))
sketch9.addConstraint(Sketcher.Constraint("Coincident", 3, 2, 4, 1))
sketch9.addConstraint(Sketcher.Constraint("Coincident", 4, 2, 5, 1))
sketch9.addConstraint(Sketcher.Constraint("Coincident", 5, 2, 0, 1))
sketch9.addConstraint(Sketcher.Constraint("Coincident", 6, 2, 7, 1))
sketch9.addConstraint(Sketcher.Constraint("Coincident", 7, 2, 8, 1))
sketch9.addConstraint(Sketcher.Constraint("Coincident", 8, 2, 9, 1))
sketch9.addConstraint(Sketcher.Constraint("Coincident", 9, 2, 10, 1))
sketch9.addConstraint(Sketcher.Constraint("Coincident", 10, 2, 11, 1))
sketch9.addConstraint(Sketcher.Constraint("Coincident", 11, 2, 6, 1))
sketch9.addConstraint(Sketcher.Constraint("Vertical", 0))
sketch9.addConstraint(Sketcher.Constraint("Horizontal", 1))
sketch9.addConstraint(Sketcher.Constraint("Vertical", 2))
sketch9.addConstraint(Sketcher.Constraint("Horizontal", 3))
sketch9.addConstraint(Sketcher.Constraint("Vertical", 4))
sketch9.addConstraint(Sketcher.Constraint("Horizontal", 5))
sketch9.addConstraint(Sketcher.Constraint("Vertical", 6))
sketch9.addConstraint(Sketcher.Constraint("Horizontal", 7))
sketch9.addConstraint(Sketcher.Constraint("Vertical", 8))
sketch9.addConstraint(Sketcher.Constraint("Horizontal", 9))
sketch9.addConstraint(Sketcher.Constraint("Vertical", 10))
sketch9.addConstraint(Sketcher.Constraint("Horizontal", 11))
sketch9.addConstraint(Sketcher.Constraint("PointOnObject", 4, 2, -1))
sketch9.addConstraint(Sketcher.Constraint("PointOnObject", 6, 2, -1))
sketch9.addConstraint(Sketcher.Constraint("Horizontal", 1, 2, 10, 2))
sketch9.addConstraint(Sketcher.Constraint("Equal", 5, 7))
sketch9.addConstraint(Sketcher.Constraint("DistanceY", 0, 1, 0, 2, Q("6 mm")))
sketch9.addConstraint(Sketcher.Constraint("DistanceX", 5, 2, 5, 1, Q("2.6 mm")))
sketch9.addConstraint(Sketcher.Constraint("DistanceX", 9, 1, 9, 2, Q("10.4 mm")))
sketch9.addConstraint(Sketcher.Constraint("DistanceY", 2, 2, 2, 1, Q("11.6 mm")))
sketch9.addConstraint(Sketcher.Constraint("DistanceY", 8, 2, 8, 1, Q("6.2 mm")))
sketch9.addConstraint(Sketcher.Constraint("DistanceX", -1, 1, 9, 2, Q("57 mm")))
sketch9.addConstraint(Sketcher.Constraint("DistanceX", 5, 2, 6, 2, Q("46 mm")))
sketch9.addConstraint(Sketcher.Constraint("DistanceX", 1, 2, 1, 1, Q("7.15 mm")))
sketch9.setExpression("Constraints[28]", "Params.sketch9_height")
sketch9.setExpression("Constraints[29]", "Params.sketch9_width")
sketch9.setExpression("Constraints[30]", "Params.sketch9_width2")
sketch9.setExpression("Constraints[31]", "Params.sketch9_height2")
sketch9.setExpression("Constraints[32]", "Params.sketch9_height3")
pocket7 = doc.addObject("PartDesign::Pocket", "Pocket006")
body.addObject(pocket7)
pocket7.Profile = sketch9
pocket7.setExpression("Length", "Params.pocket7_length")
doc.recompute()

fillet = doc.addObject("PartDesign::Fillet", "Fillet")
body.addObject(fillet)
fillet.Base = (pocket7, edges_at(pocket7, [
    (18.2, 3.2, 0),
    (18.2, 49.2, 0),
    (-2, 26.2, 0),
    (-2, 4.26, -1.241),
    (-2, -1.3, -2.352),
    (-2, 1.015, 3.944),
    (38.4, 1.015, 3.944),
    (38.4, -1.3, -2.352),
    (38.4, 4.26, -1.241),
    (38.4, 26.2, 0),
    (38.4, 48.14, -1.241),
    (38.4, 53.7, -2.352),
    (38.4, 51.385, 3.944),
    (-2, 48.14, -1.241),
    (-2, 53.7, -2.352),
    (-2, 51.385, 3.944),
]))
fillet.setExpression("Radius", "Params.fillet_radius")
doc.recompute()

fillet2 = doc.addObject("PartDesign::Fillet", "Fillet001")
body.addObject(fillet2)
fillet2.Base = (fillet, edges_at(fillet, [
    (6.45, 51.385, 3.944),
    (6.45, 53.7, -2.352),
    (6.45, 48.14, -1.241),
    (29.95, 51.385, 3.944),
    (29.95, 53.7, -2.352),
    (29.95, 48.14, -1.241),
    (29.95, 1.015, 3.944),
    (29.95, -1.3, -2.352),
    (29.95, 4.26, -1.241),
    (6.45, 1.015, 3.944),
    (6.45, -1.3, -2.352),
    (6.45, 4.26, -1.241),
]))
fillet2.setExpression("Radius", "Params.fillet2_radius")
doc.recompute()

fillet3 = doc.addObject("PartDesign::Fillet", "Fillet002")
body.addObject(fillet3)
fillet3.Base = (fillet2, edges_at(fillet2, [(-1.25, 21.9, 4.33), (-1.25, 30.9, 4.33)]))
fillet3.setExpression("Radius", "Params.fillet3_radius")
body2 = doc.addObject("PartDesign::Body", "Body001")
doc.recompute()

body.Placement = App.Placement(V(0, 0, 0.84), App.Rotation(V(0, 0, 1), 0))
boolean = doc.addObject("PartDesign::Boolean", "Boolean")
body2.addObject(boolean)
boolean.Type = "Fuse"
boolean.addObjects([body])

doc.recompute()
